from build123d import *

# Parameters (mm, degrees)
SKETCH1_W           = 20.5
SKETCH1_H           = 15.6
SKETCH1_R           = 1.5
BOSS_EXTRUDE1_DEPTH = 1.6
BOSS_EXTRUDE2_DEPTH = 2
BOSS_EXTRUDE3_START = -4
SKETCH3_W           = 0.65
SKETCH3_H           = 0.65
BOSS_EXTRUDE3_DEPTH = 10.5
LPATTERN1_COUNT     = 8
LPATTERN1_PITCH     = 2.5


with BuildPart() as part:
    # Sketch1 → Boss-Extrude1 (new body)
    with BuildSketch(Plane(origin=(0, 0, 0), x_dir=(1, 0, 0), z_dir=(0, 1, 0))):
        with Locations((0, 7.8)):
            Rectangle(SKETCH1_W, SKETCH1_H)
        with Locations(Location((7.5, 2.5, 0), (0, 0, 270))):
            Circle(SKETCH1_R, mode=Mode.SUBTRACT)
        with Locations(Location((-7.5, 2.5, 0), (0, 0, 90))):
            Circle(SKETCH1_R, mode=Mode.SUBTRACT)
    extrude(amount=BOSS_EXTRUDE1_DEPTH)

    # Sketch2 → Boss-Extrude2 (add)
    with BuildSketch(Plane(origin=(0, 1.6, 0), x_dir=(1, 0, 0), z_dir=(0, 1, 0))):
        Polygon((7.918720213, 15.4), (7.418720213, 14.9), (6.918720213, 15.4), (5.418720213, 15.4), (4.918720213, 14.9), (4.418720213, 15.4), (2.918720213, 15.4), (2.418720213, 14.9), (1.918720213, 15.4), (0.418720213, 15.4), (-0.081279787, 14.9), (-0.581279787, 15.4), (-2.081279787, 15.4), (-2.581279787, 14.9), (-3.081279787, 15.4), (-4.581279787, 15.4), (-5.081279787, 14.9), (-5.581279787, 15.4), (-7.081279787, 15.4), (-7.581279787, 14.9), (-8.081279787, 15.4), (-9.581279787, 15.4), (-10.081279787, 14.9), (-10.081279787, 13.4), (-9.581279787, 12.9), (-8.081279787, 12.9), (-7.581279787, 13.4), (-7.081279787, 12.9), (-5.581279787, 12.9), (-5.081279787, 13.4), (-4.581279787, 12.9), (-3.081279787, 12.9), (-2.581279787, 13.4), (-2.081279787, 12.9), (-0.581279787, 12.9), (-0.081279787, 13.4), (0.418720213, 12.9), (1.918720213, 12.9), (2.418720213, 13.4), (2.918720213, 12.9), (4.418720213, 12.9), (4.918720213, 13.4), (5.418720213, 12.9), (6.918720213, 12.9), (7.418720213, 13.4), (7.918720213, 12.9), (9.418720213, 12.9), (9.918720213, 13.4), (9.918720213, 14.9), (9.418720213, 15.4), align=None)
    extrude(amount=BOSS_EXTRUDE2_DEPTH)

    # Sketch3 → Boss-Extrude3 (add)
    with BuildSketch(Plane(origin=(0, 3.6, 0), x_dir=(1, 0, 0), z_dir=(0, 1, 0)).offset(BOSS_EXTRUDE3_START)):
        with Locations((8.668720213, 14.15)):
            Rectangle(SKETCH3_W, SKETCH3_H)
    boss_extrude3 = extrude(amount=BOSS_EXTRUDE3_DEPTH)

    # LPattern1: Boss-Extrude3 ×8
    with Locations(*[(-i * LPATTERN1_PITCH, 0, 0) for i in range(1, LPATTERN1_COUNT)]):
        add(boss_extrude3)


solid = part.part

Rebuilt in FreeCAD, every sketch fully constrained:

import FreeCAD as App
import Part
import Sketcher

doc = App.newDocument("Part")
body = doc.addObject("PartDesign::Body", "Body")

sketch1 = body.newObject("Sketcher::SketchObject", "Sketch")
sketch1.AttachmentSupport = (doc.getObject("XZ_Plane"), [""])
sketch1.MapMode = "FlatFace"
sketch1.addGeometry(Part.LineSegment(App.Vector(-10.2, -15.6, 0), App.Vector(-10.2, 0, 0)), False)
sketch1.addGeometry(Part.LineSegment(App.Vector(-10.2, 0, 0), App.Vector(10.2, 0, 0)), False)
sketch1.addGeometry(Part.LineSegment(App.Vector(10.2, 0, 0), App.Vector(10.2, -15.6, 0)), False)
sketch1.addGeometry(Part.LineSegment(App.Vector(10.2, -15.6, 0), App.Vector(-10.2, -15.6, 0)), False)
sketch1.addGeometry(Part.Circle(App.Vector(-7.5, -2.5, 0), App.Vector(0, 0, 1), 1.5), False)
sketch1.addGeometry(Part.Circle(App.Vector(7.5, -2.5, 0), App.Vector(0, 0, 1), 1.5), False)
sketch1.addConstraint(Sketcher.Constraint("Coincident", 0, 2, 1, 1))
sketch1.addConstraint(Sketcher.Constraint("Coincident", 1, 2, 2, 1))
sketch1.addConstraint(Sketcher.Constraint("Coincident", 2, 2, 3, 1))
sketch1.addConstraint(Sketcher.Constraint("Coincident", 3, 2, 0, 1))
sketch1.addConstraint(Sketcher.Constraint("Vertical", 0))
sketch1.addConstraint(Sketcher.Constraint("Horizontal", 1))
sketch1.addConstraint(Sketcher.Constraint("Vertical", 2))
sketch1.addConstraint(Sketcher.Constraint("Horizontal", 3))
sketch1.addConstraint(Sketcher.Constraint("Equal", 4, 5))
sketch1.addConstraint(Sketcher.Constraint("Symmetric", 0, 2, 1, 2, -1, 1))
sketch1.addConstraint(Sketcher.Constraint("Symmetric", 4, 3, 5, 3, -2))
sketch1.addConstraint(Sketcher.Constraint("Diameter", 4, 3.0))
sketch1.addConstraint(Sketcher.Constraint("DistanceX", 1, 1, 1, 2, 20.5))
sketch1.addConstraint(Sketcher.Constraint("DistanceY", 0, 1, 0, 2, 15.6))
sketch1.addConstraint(Sketcher.Constraint("DistanceX", 4, 3, 5, 3, 15.0))
sketch1.addConstraint(Sketcher.Constraint("DistanceY", 4, 3, -1, 1, 2.5))
pad1 = body.newObject("PartDesign::Pad", "Pad")
pad1.Profile = sketch1
pad1.Length = 1.6
pad1.Reversed = True

sketch2 = body.newObject("Sketcher::SketchObject", "Sketch001")
sketch2.AttachmentSupport = (doc.getObject("XZ_Plane"), [""])
sketch2.MapMode = "FlatFace"
sketch2.AttachmentOffset = App.Placement(App.Vector(0, 0, -1.6), App.Rotation())
sketch2.addGeometry(Part.LineSegment(App.Vector(7.9, -15.4, 0), App.Vector(7.4, -14.9, 0)), False)
sketch2.addGeometry(Part.LineSegment(App.Vector(7.4, -14.9, 0), App.Vector(6.9, -15.4, 0)), False)
sketch2.addGeometry(Part.LineSegment(App.Vector(6.9, -15.4, 0), App.Vector(5.4, -15.4, 0)), False)
sketch2.addGeometry(Part.LineSegment(App.Vector(5.4, -15.4, 0), App.Vector(4.9, -14.9, 0)), False)
sketch2.addGeometry(Part.LineSegment(App.Vector(4.9, -14.9, 0), App.Vector(4.4, -15.4, 0)), False)
sketch2.addGeometry(Part.LineSegment(App.Vector(4.4, -15.4, 0), App.Vector(2.9, -15.4, 0)), False)
sketch2.addGeometry(Part.LineSegment(App.Vector(2.9, -15.4, 0), App.Vector(2.4, -14.9, 0)), False)
sketch2.addGeometry(Part.LineSegment(App.Vector(2.4, -14.9, 0), App.Vector(1.9, -15.4, 0)), False)
sketch2.addGeometry(Part.LineSegment(App.Vector(1.9, -15.4, 0), App.Vector(0.4, -15.4, 0)), False)
sketch2.addGeometry(Part.LineSegment(App.Vector(0.4, -15.4, 0), App.Vector(-0.1, -14.9, 0)), False)
sketch2.addGeometry(Part.LineSegment(App.Vector(-0.1, -14.9, 0), App.Vector(-0.6, -15.4, 0)), False)
sketch2.addGeometry(Part.LineSegment(App.Vector(-0.6, -15.4, 0), App.Vector(-2.1, -15.4, 0)), False)
sketch2.addGeometry(Part.LineSegment(App.Vector(-2.1, -15.4, 0), App.Vector(-2.6, -14.9, 0)), False)
sketch2.addGeometry(Part.LineSegment(App.Vector(-2.6, -14.9, 0), App.Vector(-3.1, -15.4, 0)), False)
sketch2.addGeometry(Part.LineSegment(App.Vector(-3.1, -15.4, 0), App.Vector(-4.6, -15.4, 0)), False)
sketch2.addGeometry(Part.LineSegment(App.Vector(-4.6, -15.4, 0), App.Vector(-5.1, -14.9, 0)), False)
sketch2.addGeometry(Part.LineSegment(App.Vector(-5.1, -14.9, 0), App.Vector(-5.6, -15.4, 0)), False)
sketch2.addGeometry(Part.LineSegment(App.Vector(-5.6, -15.4, 0), App.Vector(-7.1, -15.4, 0)), False)
sketch2.addGeometry(Part.LineSegment(App.Vector(-7.1, -15.4, 0), App.Vector(-7.6, -14.9, 0)), False)
sketch2.addGeometry(Part.LineSegment(App.Vector(-7.6, -14.9, 0), App.Vector(-8.1, -15.4, 0)), False)
sketch2.addGeometry(Part.LineSegment(App.Vector(-8.1, -15.4, 0), App.Vector(-9.6, -15.4, 0)), False)
sketch2.addGeometry(Part.LineSegment(App.Vector(-9.6, -15.4, 0), App.Vector(-10.1, -14.9, 0)), False)
sketch2.addGeometry(Part.LineSegment(App.Vector(-10.1, -14.9, 0), App.Vector(-10.1, -13.4, 0)), False)
sketch2.addGeometry(Part.LineSegment(App.Vector(-10.1, -13.4, 0), App.Vector(-9.6, -12.9, 0)), False)
sketch2.addGeometry(Part.LineSegment(App.Vector(-9.6, -12.9, 0), App.Vector(-8.1, -12.9, 0)), False)
sketch2.addGeometry(Part.LineSegment(App.Vector(-8.1, -12.9, 0), App.Vector(-7.6, -13.4, 0)), False)
sketch2.addGeometry(Part.LineSegment(App.Vector(-7.6, -13.4, 0), App.Vector(-7.1, -12.9, 0)), False)
sketch2.addGeometry(Part.LineSegment(App.Vector(-7.1, -12.9, 0), App.Vector(-5.6, -12.9, 0)), False)
sketch2.addGeometry(Part.LineSegment(App.Vector(-5.6, -12.9, 0), App.Vector(-5.1, -13.4, 0)), False)
sketch2.addGeometry(Part.LineSegment(App.Vector(-5.1, -13.4, 0), App.Vector(-4.6, -12.9, 0)), False)
sketch2.addGeometry(Part.LineSegment(App.Vector(-4.6, -12.9, 0), App.Vector(-3.1, -12.9, 0)), False)
sketch2.addGeometry(Part.LineSegment(App.Vector(-3.1, -12.9, 0), App.Vector(-2.6, -13.4, 0)), False)
sketch2.addGeometry(Part.LineSegment(App.Vector(-2.6, -13.4, 0), App.Vector(-2.1, -12.9, 0)), False)
sketch2.addGeometry(Part.LineSegment(App.Vector(-2.1, -12.9, 0), App.Vector(-0.6, -12.9, 0)), False)
sketch2.addGeometry(Part.LineSegment(App.Vector(-0.6, -12.9, 0), App.Vector(-0.1, -13.4, 0)), False)
sketch2.addGeometry(Part.LineSegment(App.Vector(-0.1, -13.4, 0), App.Vector(0.4, -12.9, 0)), False)
sketch2.addGeometry(Part.LineSegment(App.Vector(0.4, -12.9, 0), App.Vector(1.9, -12.9, 0)), False)
sketch2.addGeometry(Part.LineSegment(App.Vector(1.9, -12.9, 0), App.Vector(2.4, -13.4, 0)), False)
sketch2.addGeometry(Part.LineSegment(App.Vector(2.4, -13.4, 0), App.Vector(2.9, -12.9, 0)), False)
sketch2.addGeometry(Part.LineSegment(App.Vector(2.9, -12.9, 0), App.Vector(4.4, -12.9, 0)), False)
sketch2.addGeometry(Part.LineSegment(App.Vector(4.4, -12.9, 0), App.Vector(4.9, -13.4, 0)), False)
sketch2.addGeometry(Part.LineSegment(App.Vector(4.9, -13.4, 0), App.Vector(5.4, -12.9, 0)), False)
sketch2.addGeometry(Part.LineSegment(App.Vector(5.4, -12.9, 0), App.Vector(6.9, -12.9, 0)), False)
sketch2.addGeometry(Part.LineSegment(App.Vector(6.9, -12.9, 0), App.Vector(7.4, -13.4, 0)), False)
sketch2.addGeometry(Part.LineSegment(App.Vector(7.4, -13.4, 0), App.Vector(7.9, -12.9, 0)), False)
sketch2.addGeometry(Part.LineSegment(App.Vector(7.9, -12.9, 0), App.Vector(9.4, -12.9, 0)), False)
sketch2.addGeometry(Part.LineSegment(App.Vector(9.4, -12.9, 0), App.Vector(9.9, -13.4, 0)), False)
sketch2.addGeometry(Part.LineSegment(App.Vector(9.9, -13.4, 0), App.Vector(9.9, -14.9, 0)), False)
sketch2.addGeometry(Part.LineSegment(App.Vector(9.9, -14.9, 0), App.Vector(9.4, -15.4, 0)), False)
sketch2.addGeometry(Part.LineSegment(App.Vector(9.4, -15.4, 0), App.Vector(7.9, -15.4, 0)), False)
sketch2.addConstraint(Sketcher.Constraint("Coincident", 0, 2, 1, 1))
sketch2.addConstraint(Sketcher.Constraint("Coincident", 1, 2, 2, 1))
sketch2.addConstraint(Sketcher.Constraint("Coincident", 2, 2, 3, 1))
sketch2.addConstraint(Sketcher.Constraint("Coincident", 3, 2, 4, 1))
sketch2.addConstraint(Sketcher.Constraint("Coincident", 4, 2, 5, 1))
sketch2.addConstraint(Sketcher.Constraint("Coincident", 5, 2, 6, 1))
sketch2.addConstraint(Sketcher.Constraint("Coincident", 6, 2, 7, 1))
sketch2.addConstraint(Sketcher.Constraint("Coincident", 7, 2, 8, 1))
sketch2.addConstraint(Sketcher.Constraint("Coincident", 8, 2, 9, 1))
sketch2.addConstraint(Sketcher.Constraint("Coincident", 9, 2, 10, 1))
sketch2.addConstraint(Sketcher.Constraint("Coincident", 10, 2, 11, 1))
sketch2.addConstraint(Sketcher.Constraint("Coincident", 11, 2, 12, 1))
sketch2.addConstraint(Sketcher.Constraint("Coincident", 12, 2, 13, 1))
sketch2.addConstraint(Sketcher.Constraint("Coincident", 13, 2, 14, 1))
sketch2.addConstraint(Sketcher.Constraint("Coincident", 14, 2, 15, 1))
sketch2.addConstraint(Sketcher.Constraint("Coincident", 15, 2, 16, 1))
sketch2.addConstraint(Sketcher.Constraint("Coincident", 16, 2, 17, 1))
sketch2.addConstraint(Sketcher.Constraint("Coincident", 17, 2, 18, 1))
sketch2.addConstraint(Sketcher.Constraint("Coincident", 18, 2, 19, 1))
sketch2.addConstraint(Sketcher.Constraint("Coincident", 19, 2, 20, 1))
sketch2.addConstraint(Sketcher.Constraint("Coincident", 20, 2, 21, 1))
sketch2.addConstraint(Sketcher.Constraint("Coincident", 21, 2, 22, 1))
sketch2.addConstraint(Sketcher.Constraint("Coincident", 22, 2, 23, 1))
sketch2.addConstraint(Sketcher.Constraint("Coincident", 23, 2, 24, 1))
sketch2.addConstraint(Sketcher.Constraint("Coincident", 24, 2, 25, 1))
sketch2.addConstraint(Sketcher.Constraint("Coincident", 25, 2, 26, 1))
sketch2.addConstraint(Sketcher.Constraint("Coincident", 26, 2, 27, 1))
sketch2.addConstraint(Sketcher.Constraint("Coincident", 27, 2, 28, 1))
sketch2.addConstraint(Sketcher.Constraint("Coincident", 28, 2, 29, 1))
sketch2.addConstraint(Sketcher.Constraint("Coincident", 29, 2, 30, 1))
sketch2.addConstraint(Sketcher.Constraint("Coincident", 30, 2, 31, 1))
sketch2.addConstraint(Sketcher.Constraint("Coincident", 31, 2, 32, 1))
sketch2.addConstraint(Sketcher.Constraint("Coincident", 32, 2, 33, 1))
sketch2.addConstraint(Sketcher.Constraint("Coincident", 33, 2, 34, 1))
sketch2.addConstraint(Sketcher.Constraint("Coincident", 34, 2, 35, 1))
sketch2.addConstraint(Sketcher.Constraint("Coincident", 35, 2, 36, 1))
sketch2.addConstraint(Sketcher.Constraint("Coincident", 36, 2, 37, 1))
sketch2.addConstraint(Sketcher.Constraint("Coincident", 37, 2, 38, 1))
sketch2.addConstraint(Sketcher.Constraint("Coincident", 38, 2, 39, 1))
sketch2.addConstraint(Sketcher.Constraint("Coincident", 39, 2, 40, 1))
sketch2.addConstraint(Sketcher.Constraint("Coincident", 40, 2, 41, 1))
sketch2.addConstraint(Sketcher.Constraint("Coincident", 41, 2, 42, 1))
sketch2.addConstraint(Sketcher.Constraint("Coincident", 42, 2, 43, 1))
sketch2.addConstraint(Sketcher.Constraint("Coincident", 43, 2, 44, 1))
sketch2.addConstraint(Sketcher.Constraint("Coincident", 44, 2, 45, 1))
sketch2.addConstraint(Sketcher.Constraint("Coincident", 45, 2, 46, 1))
sketch2.addConstraint(Sketcher.Constraint("Coincident", 46, 2, 47, 1))
sketch2.addConstraint(Sketcher.Constraint("Coincident", 47, 2, 48, 1))
sketch2.addConstraint(Sketcher.Constraint("Coincident", 48, 2, 49, 1))
sketch2.addConstraint(Sketcher.Constraint("Coincident", 49, 2, 0, 1))
sketch2.addConstraint(Sketcher.Constraint("Horizontal", 2))
sketch2.addConstraint(Sketcher.Constraint("Horizontal", 5))
sketch2.addConstraint(Sketcher.Constraint("Horizontal", 8))
sketch2.addConstraint(Sketcher.Constraint("Horizontal", 11))
sketch2.addConstraint(Sketcher.Constraint("Horizontal", 14))
sketch2.addConstraint(Sketcher.Constraint("Horizontal", 17))
sketch2.addConstraint(Sketcher.Constraint("Horizontal", 20))
sketch2.addConstraint(Sketcher.Constraint("Vertical", 22))
sketch2.addConstraint(Sketcher.Constraint("Horizontal", 24))
sketch2.addConstraint(Sketcher.Constraint("Horizontal", 27))
sketch2.addConstraint(Sketcher.Constraint("Horizontal", 30))
sketch2.addConstraint(Sketcher.Constraint("Horizontal", 33))
sketch2.addConstraint(Sketcher.Constraint("Horizontal", 36))
sketch2.addConstraint(Sketcher.Constraint("Horizontal", 39))
sketch2.addConstraint(Sketcher.Constraint("Horizontal", 42))
sketch2.addConstraint(Sketcher.Constraint("Horizontal", 45))
sketch2.addConstraint(Sketcher.Constraint("Vertical", 47))
sketch2.addConstraint(Sketcher.Constraint("Horizontal", 49))
sketch2.addConstraint(Sketcher.Constraint("Perpendicular", 0, 1))
sketch2.addConstraint(Sketcher.Constraint("Perpendicular", 1, 3))
sketch2.addConstraint(Sketcher.Constraint("Perpendicular", 3, 4))
sketch2.addConstraint(Sketcher.Constraint("Perpendicular", 4, 6))
sketch2.addConstraint(Sketcher.Constraint("Perpendicular", 6, 7))
sketch2.addConstraint(Sketcher.Constraint("Perpendicular", 7, 9))
sketch2.addConstraint(Sketcher.Constraint("Perpendicular", 9, 10))
sketch2.addConstraint(Sketcher.Constraint("Perpendicular", 10, 12))
sketch2.addConstraint(Sketcher.Constraint("Perpendicular", 12, 13))
sketch2.addConstraint(Sketcher.Constraint("Perpendicular", 13, 15))
sketch2.addConstraint(Sketcher.Constraint("Perpendicular", 15, 16))
sketch2.addConstraint(Sketcher.Constraint("Perpendicular", 16, 18))
sketch2.addConstraint(Sketcher.Constraint("Perpendicular", 18, 19))
sketch2.addConstraint(Sketcher.Constraint("Perpendicular", 19, 21))
sketch2.addConstraint(Sketcher.Constraint("Perpendicular", 21, 23))
sketch2.addConstraint(Sketcher.Constraint("Perpendicular", 23, 25))
sketch2.addConstraint(Sketcher.Constraint("Perpendicular", 25, 26))
sketch2.addConstraint(Sketcher.Constraint("Perpendicular", 26, 28))
sketch2.addConstraint(Sketcher.Constraint("Perpendicular", 28, 29))
sketch2.addConstraint(Sketcher.Constraint("Perpendicular", 29, 31))
sketch2.addConstraint(Sketcher.Constraint("Perpendicular", 31, 32))
sketch2.addConstraint(Sketcher.Constraint("Perpendicular", 32, 34))
sketch2.addConstraint(Sketcher.Constraint("Perpendicular", 34, 35))
sketch2.addConstraint(Sketcher.Constraint("Perpendicular", 35, 37))
sketch2.addConstraint(Sketcher.Constraint("Perpendicular", 37, 38))
sketch2.addConstraint(Sketcher.Constraint("Perpendicular", 38, 40))
sketch2.addConstraint(Sketcher.Constraint("Perpendicular", 40, 41))
sketch2.addConstraint(Sketcher.Constraint("Perpendicular", 41, 43))
sketch2.addConstraint(Sketcher.Constraint("Perpendicular", 43, 44))
sketch2.addConstraint(Sketcher.Constraint("Perpendicular", 44, 46))
sketch2.addConstraint(Sketcher.Constraint("Perpendicular", 46, 48))
sketch2.addConstraint(Sketcher.Constraint("Horizontal", 0, 2, 3, 2))
sketch2.addConstraint(Sketcher.Constraint("Horizontal", 2, 2, 4, 2))
sketch2.addConstraint(Sketcher.Constraint("Horizontal", 3, 2, 6, 2))
sketch2.addConstraint(Sketcher.Constraint("Horizontal", 5, 2, 7, 2))
sketch2.addConstraint(Sketcher.Constraint("Horizontal", 6, 2, 9, 2))
sketch2.addConstraint(Sketcher.Constraint("Horizontal", 8, 2, 10, 2))
sketch2.addConstraint(Sketcher.Constraint("Horizontal", 9, 2, 12, 2))
sketch2.addConstraint(Sketcher.Constraint("Horizontal", 11, 2, 13, 2))
sketch2.addConstraint(Sketcher.Constraint("Horizontal", 12, 2, 15, 2))
sketch2.addConstraint(Sketcher.Constraint("Horizontal", 14, 2, 16, 2))
sketch2.addConstraint(Sketcher.Constraint("Horizontal", 15, 2, 18, 2))
sketch2.addConstraint(Sketcher.Constraint("Horizontal", 17, 2, 19, 2))
sketch2.addConstraint(Sketcher.Constraint("Horizontal", 18, 2, 21, 2))
sketch2.addConstraint(Sketcher.Constraint("Horizontal", 22, 2, 25, 2))
sketch2.addConstraint(Sketcher.Constraint("Horizontal", 24, 2, 26, 2))
sketch2.addConstraint(Sketcher.Constraint("Horizontal", 25, 2, 28, 2))
sketch2.addConstraint(Sketcher.Constraint("Horizontal", 27, 2, 29, 2))
sketch2.addConstraint(Sketcher.Constraint("Horizontal", 28, 2, 31, 2))
sketch2.addConstraint(Sketcher.Constraint("Horizontal", 30, 2, 32, 2))
sketch2.addConstraint(Sketcher.Constraint("Horizontal", 31, 2, 34, 2))
sketch2.addConstraint(Sketcher.Constraint("Horizontal", 33, 2, 35, 2))
sketch2.addConstraint(Sketcher.Constraint("Horizontal", 34, 2, 37, 2))
sketch2.addConstraint(Sketcher.Constraint("Horizontal", 36, 2, 38, 2))
sketch2.addConstraint(Sketcher.Constraint("Horizontal", 37, 2, 40, 2))
sketch2.addConstraint(Sketcher.Constraint("Horizontal", 39, 2, 41, 2))
sketch2.addConstraint(Sketcher.Constraint("Horizontal", 40, 2, 43, 2))
sketch2.addConstraint(Sketcher.Constraint("Horizontal", 42, 2, 44, 2))
sketch2.addConstraint(Sketcher.Constraint("Horizontal", 43, 2, 46, 2))
sketch2.addConstraint(Sketcher.Constraint("Horizontal", 21, 2, 47, 2))
sketch2.addConstraint(Sketcher.Constraint("Horizontal", 20, 2, 48, 2))
sketch2.addConstraint(Sketcher.Constraint("Vertical", 20, 2, 23, 2))
sketch2.addConstraint(Sketcher.Constraint("Vertical", 19, 2, 24, 2))
sketch2.addConstraint(Sketcher.Constraint("Vertical", 18, 2, 25, 2))
sketch2.addConstraint(Sketcher.Constraint("Vertical", 16, 2, 27, 2))
sketch2.addConstraint(Sketcher.Constraint("Vertical", 13, 2, 30, 2))
sketch2.addConstraint(Sketcher.Constraint("Vertical", 10, 2, 33, 2))
sketch2.addConstraint(Sketcher.Constraint("Vertical", 7, 2, 36, 2))
sketch2.addConstraint(Sketcher.Constraint("Vertical", 4, 2, 39, 2))
sketch2.addConstraint(Sketcher.Constraint("Vertical", 1, 2, 42, 2))
sketch2.addConstraint(Sketcher.Constraint("Equal", 2, 5))
sketch2.addConstraint(Sketcher.Constraint("Equal", 5, 8))
sketch2.addConstraint(Sketcher.Constraint("Equal", 8, 11))
sketch2.addConstraint(Sketcher.Constraint("Equal", 11, 14))
sketch2.addConstraint(Sketcher.Constraint("Equal", 14, 17))
sketch2.addConstraint(Sketcher.Constraint("Equal", 17, 20))
sketch2.addConstraint(Sketcher.Constraint("Equal", 42, 45))
sketch2.addConstraint(Sketcher.Constraint("Equal", 49, 22))
sketch2.addConstraint(Sketcher.Constraint("DistanceX", 2, 2, 2, 1, 1.5))
sketch2.addConstraint(Sketcher.Constraint("DistanceX", 2, 2, 0, 2, 2.0))
sketch2.addConstraint(Sketcher.Constraint("DistanceY", 0, 2, -1, 1, 14.9))
sketch2.addConstraint(Sketcher.Constraint("DistanceX", -1, 1, 0, 2, 7.41872))
pad2 = body.newObject("PartDesign::Pad", "Pad001")
pad2.Profile = sketch2
pad2.Length = 2
pad2.Reversed = True

sketch3 = body.newObject("Sketcher::SketchObject", "Sketch002")
sketch3.AttachmentSupport = (doc.getObject("XZ_Plane"), [""])
sketch3.MapMode = "FlatFace"
sketch3.AttachmentOffset = App.Placement(App.Vector(0, 0, 0.4), App.Rotation())
sketch3.addGeometry(Part.LineSegment(App.Vector(8.3, -14.5, 0), App.Vector(8.3, -13.8, 0)), False)
sketch3.addGeometry(Part.LineSegment(App.Vector(8.3, -13.8, 0), App.Vector(9, -13.8, 0)), False)
sketch3.addGeometry(Part.LineSegment(App.Vector(9, -13.8, 0), App.Vector(9, -14.5, 0)), False)
sketch3.addGeometry(Part.LineSegment(App.Vector(9, -14.5, 0), App.Vector(8.3, -14.5, 0)), False)
sketch3.addConstraint(Sketcher.Constraint("Coincident", 0, 2, 1, 1))
sketch3.addConstraint(Sketcher.Constraint("Coincident", 1, 2, 2, 1))
sketch3.addConstraint(Sketcher.Constraint("Coincident", 2, 2, 3, 1))
sketch3.addConstraint(Sketcher.Constraint("Coincident", 3, 2, 0, 1))
sketch3.addConstraint(Sketcher.Constraint("Vertical", 0))
sketch3.addConstraint(Sketcher.Constraint("Horizontal", 1))
sketch3.addConstraint(Sketcher.Constraint("Vertical", 2))
sketch3.addConstraint(Sketcher.Constraint("Horizontal", 3))
sketch3.addConstraint(Sketcher.Constraint("Equal", 3, 0))
sketch3.addConstraint(Sketcher.Constraint("DistanceX", 1, 1, 1, 2, 0.65))
sketch3.addConstraint(Sketcher.Constraint("DistanceY", 0, 2, -1, 1, 13.825))
sketch3.addConstraint(Sketcher.Constraint("DistanceX", -1, 1, 0, 2, 8.34372))
pad3 = body.newObject("PartDesign::Pad", "Pad002")
pad3.Profile = sketch3
pad3.Length = 10.5
pad3.Reversed = True
doc.recompute()

linearpattern = body.newObject("PartDesign::LinearPattern", "LinearPattern")
linearpattern.Originals = [pad3]
linearpattern.Direction = (doc.getObject("X_Axis"), [""])
linearpattern.Mode = "offset"
linearpattern.Offset = 2.5
linearpattern.Occurrences = 8
linearpattern.Reversed = True
body.Tip = linearpattern

doc.recompute()
